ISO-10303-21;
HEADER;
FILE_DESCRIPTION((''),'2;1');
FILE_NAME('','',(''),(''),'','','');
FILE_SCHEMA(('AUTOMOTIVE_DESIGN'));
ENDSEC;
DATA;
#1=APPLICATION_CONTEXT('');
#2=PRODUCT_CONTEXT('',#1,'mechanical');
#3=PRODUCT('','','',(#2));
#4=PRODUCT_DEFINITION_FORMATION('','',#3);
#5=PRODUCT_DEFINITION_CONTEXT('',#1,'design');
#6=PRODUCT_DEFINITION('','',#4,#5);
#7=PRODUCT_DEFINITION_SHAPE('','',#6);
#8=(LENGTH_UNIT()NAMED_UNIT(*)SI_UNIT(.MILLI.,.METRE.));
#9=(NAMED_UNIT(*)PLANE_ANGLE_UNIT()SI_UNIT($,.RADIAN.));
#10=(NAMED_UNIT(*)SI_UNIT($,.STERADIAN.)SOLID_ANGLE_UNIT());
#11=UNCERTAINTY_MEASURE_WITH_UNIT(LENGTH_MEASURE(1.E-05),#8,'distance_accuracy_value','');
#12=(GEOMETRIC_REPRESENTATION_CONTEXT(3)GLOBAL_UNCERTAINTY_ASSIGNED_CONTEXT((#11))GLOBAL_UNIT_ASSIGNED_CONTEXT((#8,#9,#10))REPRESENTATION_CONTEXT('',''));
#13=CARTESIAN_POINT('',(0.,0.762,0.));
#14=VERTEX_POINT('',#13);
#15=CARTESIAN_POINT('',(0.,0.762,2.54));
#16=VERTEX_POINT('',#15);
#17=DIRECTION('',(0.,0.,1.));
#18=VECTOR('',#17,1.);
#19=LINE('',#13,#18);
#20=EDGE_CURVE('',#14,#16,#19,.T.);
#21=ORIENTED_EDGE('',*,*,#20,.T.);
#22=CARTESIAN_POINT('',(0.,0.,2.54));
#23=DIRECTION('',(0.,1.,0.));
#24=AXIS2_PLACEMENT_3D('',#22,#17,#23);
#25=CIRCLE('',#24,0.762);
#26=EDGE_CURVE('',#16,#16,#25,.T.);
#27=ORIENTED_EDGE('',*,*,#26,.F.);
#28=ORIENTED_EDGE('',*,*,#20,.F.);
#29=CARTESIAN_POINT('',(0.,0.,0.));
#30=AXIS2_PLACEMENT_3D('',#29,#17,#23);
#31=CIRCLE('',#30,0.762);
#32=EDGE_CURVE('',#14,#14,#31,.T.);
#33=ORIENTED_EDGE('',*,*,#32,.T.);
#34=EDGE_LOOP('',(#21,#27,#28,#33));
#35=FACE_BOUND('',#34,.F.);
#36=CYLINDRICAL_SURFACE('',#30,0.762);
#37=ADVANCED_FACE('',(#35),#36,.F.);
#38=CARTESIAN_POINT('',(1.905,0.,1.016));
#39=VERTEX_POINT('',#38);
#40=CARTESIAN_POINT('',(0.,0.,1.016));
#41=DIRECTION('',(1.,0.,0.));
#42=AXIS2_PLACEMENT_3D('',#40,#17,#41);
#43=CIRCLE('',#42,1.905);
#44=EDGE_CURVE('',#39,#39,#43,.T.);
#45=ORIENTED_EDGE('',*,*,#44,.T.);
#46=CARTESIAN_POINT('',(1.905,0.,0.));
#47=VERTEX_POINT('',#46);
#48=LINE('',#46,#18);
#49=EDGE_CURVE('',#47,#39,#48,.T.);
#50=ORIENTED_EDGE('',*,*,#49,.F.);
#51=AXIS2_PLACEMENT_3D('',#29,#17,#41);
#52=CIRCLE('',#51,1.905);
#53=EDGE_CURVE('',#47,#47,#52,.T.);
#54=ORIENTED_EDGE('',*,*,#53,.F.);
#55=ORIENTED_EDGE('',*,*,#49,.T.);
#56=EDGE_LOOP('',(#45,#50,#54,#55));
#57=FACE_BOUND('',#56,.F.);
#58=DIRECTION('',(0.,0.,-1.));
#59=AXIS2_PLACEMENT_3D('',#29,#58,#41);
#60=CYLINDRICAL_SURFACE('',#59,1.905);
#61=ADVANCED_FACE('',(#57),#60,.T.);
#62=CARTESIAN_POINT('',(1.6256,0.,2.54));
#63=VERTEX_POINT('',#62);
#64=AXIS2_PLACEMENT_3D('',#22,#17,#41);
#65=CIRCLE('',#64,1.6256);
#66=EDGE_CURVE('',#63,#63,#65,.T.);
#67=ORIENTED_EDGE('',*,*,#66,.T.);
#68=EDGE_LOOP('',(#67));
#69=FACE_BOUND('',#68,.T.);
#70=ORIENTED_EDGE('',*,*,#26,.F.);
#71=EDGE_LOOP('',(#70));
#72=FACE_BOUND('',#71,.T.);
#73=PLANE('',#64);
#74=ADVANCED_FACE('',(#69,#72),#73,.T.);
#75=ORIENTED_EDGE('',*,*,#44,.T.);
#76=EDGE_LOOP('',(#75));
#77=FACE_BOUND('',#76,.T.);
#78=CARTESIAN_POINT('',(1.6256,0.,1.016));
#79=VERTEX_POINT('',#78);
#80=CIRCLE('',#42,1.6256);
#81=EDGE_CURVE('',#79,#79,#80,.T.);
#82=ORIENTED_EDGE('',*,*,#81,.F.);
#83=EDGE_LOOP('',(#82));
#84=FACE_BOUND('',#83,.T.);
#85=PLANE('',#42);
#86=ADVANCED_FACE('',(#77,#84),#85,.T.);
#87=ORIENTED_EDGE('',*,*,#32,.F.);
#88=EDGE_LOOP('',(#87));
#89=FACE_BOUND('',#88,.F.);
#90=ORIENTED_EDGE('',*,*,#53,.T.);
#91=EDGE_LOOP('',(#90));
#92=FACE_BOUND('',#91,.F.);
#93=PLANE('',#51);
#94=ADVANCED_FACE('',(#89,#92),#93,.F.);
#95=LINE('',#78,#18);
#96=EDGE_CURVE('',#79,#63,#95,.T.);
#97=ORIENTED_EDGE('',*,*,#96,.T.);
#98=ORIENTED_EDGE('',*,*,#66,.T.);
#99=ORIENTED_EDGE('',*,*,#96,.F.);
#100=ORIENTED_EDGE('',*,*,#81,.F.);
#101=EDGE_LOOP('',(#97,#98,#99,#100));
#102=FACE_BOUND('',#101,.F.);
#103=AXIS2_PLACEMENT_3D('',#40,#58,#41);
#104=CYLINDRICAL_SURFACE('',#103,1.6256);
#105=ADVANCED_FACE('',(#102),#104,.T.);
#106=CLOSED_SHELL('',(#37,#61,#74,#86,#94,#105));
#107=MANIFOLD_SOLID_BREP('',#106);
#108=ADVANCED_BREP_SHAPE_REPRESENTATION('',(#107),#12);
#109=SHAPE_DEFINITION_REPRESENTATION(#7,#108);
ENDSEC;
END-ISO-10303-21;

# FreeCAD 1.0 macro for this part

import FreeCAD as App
import Part
import Sketcher
Q = App.Units.Quantity

doc = App.newDocument("Part")
body = doc.addObject("PartDesign::Body", "Body")

sketch1 = doc.addObject("Sketcher::SketchObject", "Sketch")
body.addObject(sketch1)
sketch1.AttachmentSupport = (doc.XY_Plane, [""])
sketch1.MapMode = "FlatFace"
sketch1.addGeometry(Part.Circle(App.Vector(0, 0, 0), App.Vector(0, 0, 1), 1.9), False)
sketch1.addConstraint([
    Sketcher.Constraint("Coincident", 0, 3, -1, 1),
    Sketcher.Constraint("Diameter", 0, Q("0.15 in")),
])
pad1 = doc.addObject("PartDesign::Pad", "Pad")
body.addObject(pad1)
pad1.Profile = sketch1
pad1.Length = Q("0.04 in")

sketch2 = doc.addObject("Sketcher::SketchObject", "Sketch001")
body.addObject(sketch2)
sketch2.AttachmentSupport = (doc.XY_Plane, [""])
sketch2.MapMode = "FlatFace"
sketch2.AttachmentOffset = App.Placement(App.Vector(0, 0, 0.04 * 25.4), App.Rotation())
sketch2.addGeometry(Part.Circle(App.Vector(0, 0, 0), App.Vector(0, 0, 1), 1.6), False)
sketch2.addConstraint([
    Sketcher.Constraint("Coincident", 0, 3, -1, 1),
    Sketcher.Constraint("Diameter", 0, Q("0.128 in")),
])
pad2 = doc.addObject("PartDesign::Pad", "Pad001")
body.addObject(pad2)
pad2.Profile = sketch2
pad2.Length = Q("0.06 in")

sketch3 = doc.addObject("Sketcher::SketchObject", "Sketch002")
body.addObject(sketch3)
sketch3.AttachmentSupport = (doc.XY_Plane, [""])
sketch3.MapMode = "FlatFace"
sketch3.addGeometry(Part.Circle(App.Vector(0, 0, 0), App.Vector(0, 0, 1), 0.8), False)
sketch3.addConstraint([
    Sketcher.Constraint("Coincident", 0, 3, -1, 1),
    Sketcher.Constraint("Diameter", 0, Q("0.06 in")),
])
doc.recompute()
hole = doc.addObject("PartDesign::Hole", "Hole")
body.addObject(hole)
hole.Profile = sketch3
hole.ThreadType = "None"
hole.Diameter = Q("0.06 in")
hole.DepthType = "ThroughAll"
hole.Reversed = True

doc.recompute()
